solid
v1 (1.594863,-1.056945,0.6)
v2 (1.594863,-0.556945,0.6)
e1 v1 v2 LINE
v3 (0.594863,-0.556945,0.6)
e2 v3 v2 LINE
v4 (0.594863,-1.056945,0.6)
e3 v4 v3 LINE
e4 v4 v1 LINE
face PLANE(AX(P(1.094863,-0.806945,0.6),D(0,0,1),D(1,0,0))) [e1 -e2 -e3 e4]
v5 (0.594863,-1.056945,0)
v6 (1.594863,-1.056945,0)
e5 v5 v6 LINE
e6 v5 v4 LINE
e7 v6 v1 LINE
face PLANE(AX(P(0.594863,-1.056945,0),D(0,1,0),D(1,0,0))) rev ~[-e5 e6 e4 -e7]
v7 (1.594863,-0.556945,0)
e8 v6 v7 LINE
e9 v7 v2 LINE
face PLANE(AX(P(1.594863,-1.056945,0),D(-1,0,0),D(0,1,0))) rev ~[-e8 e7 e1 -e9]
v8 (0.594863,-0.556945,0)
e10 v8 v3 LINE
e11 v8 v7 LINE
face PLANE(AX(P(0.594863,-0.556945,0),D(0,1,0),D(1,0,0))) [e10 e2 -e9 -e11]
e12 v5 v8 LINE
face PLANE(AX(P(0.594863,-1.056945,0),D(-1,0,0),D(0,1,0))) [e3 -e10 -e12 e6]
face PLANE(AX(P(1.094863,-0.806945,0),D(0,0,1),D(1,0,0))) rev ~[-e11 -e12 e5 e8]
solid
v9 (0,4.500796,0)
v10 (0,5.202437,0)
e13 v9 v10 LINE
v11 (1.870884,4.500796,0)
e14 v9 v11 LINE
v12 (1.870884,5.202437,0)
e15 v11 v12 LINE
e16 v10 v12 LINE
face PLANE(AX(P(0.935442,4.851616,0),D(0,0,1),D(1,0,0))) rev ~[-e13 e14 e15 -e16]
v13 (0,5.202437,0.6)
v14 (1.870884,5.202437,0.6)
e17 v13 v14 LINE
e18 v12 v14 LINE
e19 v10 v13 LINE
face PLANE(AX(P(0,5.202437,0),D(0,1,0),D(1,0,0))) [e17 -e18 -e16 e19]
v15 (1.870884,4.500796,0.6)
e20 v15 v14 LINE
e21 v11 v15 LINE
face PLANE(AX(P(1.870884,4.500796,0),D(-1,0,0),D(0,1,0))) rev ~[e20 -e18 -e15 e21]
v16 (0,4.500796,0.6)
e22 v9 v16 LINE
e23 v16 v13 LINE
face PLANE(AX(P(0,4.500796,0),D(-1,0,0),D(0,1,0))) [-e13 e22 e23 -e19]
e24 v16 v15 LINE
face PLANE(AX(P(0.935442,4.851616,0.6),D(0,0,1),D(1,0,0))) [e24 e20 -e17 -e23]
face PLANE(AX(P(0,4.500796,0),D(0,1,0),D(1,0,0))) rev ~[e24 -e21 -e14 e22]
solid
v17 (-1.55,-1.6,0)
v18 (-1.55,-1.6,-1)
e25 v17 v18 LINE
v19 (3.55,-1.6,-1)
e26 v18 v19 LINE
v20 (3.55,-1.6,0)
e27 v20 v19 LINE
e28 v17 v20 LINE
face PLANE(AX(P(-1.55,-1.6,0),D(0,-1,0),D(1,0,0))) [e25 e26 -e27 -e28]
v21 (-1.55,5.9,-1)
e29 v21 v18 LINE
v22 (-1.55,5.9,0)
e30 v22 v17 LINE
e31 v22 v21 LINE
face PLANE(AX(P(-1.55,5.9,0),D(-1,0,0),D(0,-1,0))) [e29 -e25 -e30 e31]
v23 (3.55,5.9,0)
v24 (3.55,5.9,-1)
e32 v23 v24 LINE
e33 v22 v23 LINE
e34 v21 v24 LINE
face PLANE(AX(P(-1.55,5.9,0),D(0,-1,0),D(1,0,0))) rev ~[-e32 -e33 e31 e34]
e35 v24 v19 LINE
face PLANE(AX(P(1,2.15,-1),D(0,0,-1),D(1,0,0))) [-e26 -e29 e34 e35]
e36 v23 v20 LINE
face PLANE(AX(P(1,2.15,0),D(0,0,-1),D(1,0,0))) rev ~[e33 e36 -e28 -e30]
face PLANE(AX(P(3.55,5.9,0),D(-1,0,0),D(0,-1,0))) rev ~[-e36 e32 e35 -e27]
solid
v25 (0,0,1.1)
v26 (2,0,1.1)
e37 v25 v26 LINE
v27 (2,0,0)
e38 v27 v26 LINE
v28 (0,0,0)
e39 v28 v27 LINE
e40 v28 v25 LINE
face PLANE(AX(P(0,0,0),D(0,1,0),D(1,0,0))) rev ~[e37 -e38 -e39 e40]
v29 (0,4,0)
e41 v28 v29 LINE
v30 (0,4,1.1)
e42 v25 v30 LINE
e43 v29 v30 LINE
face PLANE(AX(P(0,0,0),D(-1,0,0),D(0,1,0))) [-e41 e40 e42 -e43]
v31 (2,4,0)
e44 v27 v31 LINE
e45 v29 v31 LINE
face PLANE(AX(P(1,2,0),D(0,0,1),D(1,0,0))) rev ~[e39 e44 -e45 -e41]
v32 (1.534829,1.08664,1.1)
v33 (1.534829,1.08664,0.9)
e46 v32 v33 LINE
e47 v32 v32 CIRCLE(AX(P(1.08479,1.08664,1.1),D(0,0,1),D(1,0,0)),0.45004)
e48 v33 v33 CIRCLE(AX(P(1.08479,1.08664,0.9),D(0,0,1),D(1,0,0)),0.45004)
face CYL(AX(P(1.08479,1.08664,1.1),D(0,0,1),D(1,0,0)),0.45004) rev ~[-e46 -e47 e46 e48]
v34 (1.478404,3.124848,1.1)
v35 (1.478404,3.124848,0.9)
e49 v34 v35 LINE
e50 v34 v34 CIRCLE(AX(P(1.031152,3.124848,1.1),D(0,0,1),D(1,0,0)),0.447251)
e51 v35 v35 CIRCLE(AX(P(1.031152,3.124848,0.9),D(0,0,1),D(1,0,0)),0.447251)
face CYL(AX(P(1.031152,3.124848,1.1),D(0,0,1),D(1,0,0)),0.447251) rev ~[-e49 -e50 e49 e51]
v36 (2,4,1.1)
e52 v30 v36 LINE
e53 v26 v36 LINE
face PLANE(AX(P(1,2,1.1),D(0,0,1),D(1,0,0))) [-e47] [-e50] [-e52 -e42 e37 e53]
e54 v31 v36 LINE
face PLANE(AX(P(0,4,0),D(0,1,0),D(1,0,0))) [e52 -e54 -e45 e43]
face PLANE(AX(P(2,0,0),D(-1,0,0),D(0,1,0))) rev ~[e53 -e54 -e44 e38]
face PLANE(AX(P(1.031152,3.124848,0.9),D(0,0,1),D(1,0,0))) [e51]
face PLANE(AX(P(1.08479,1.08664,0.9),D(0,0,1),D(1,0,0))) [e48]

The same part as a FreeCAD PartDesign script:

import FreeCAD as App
import Part
import Sketcher

V = App.Vector
Q = App.Units.Quantity

doc = App.newDocument("Part")
body = doc.addObject("PartDesign::Body", "Body")

sketch1 = body.newObject("Sketcher::SketchObject", "Sketch")
sketch1.AttachmentSupport = (doc.getObject("XY_Plane"), [""])
sketch1.MapMode = "FlatFace"
sketch1.addGeometry([
    Part.LineSegment(V(0, 4, 0), V(0, 0, 0)),
    Part.LineSegment(V(0, 0, 0), V(2, 0, 0)),
    Part.LineSegment(V(2, 0, 0), V(2, 4, 0)),
    Part.LineSegment(V(2, 4, 0), V(0, 4, 0)),
], False)
sketch1.addConstraint([
    Sketcher.Constraint("Coincident", 0, 2, 1, 1),
    Sketcher.Constraint("Coincident", 1, 2, 2, 1),
    Sketcher.Constraint("Coincident", 2, 2, 3, 1),
    Sketcher.Constraint("Coincident", 3, 2, 0, 1),
    Sketcher.Constraint("Vertical", 0),
    Sketcher.Constraint("Horizontal", 1),
    Sketcher.Constraint("Vertical", 2),
    Sketcher.Constraint("Horizontal", 3),
    Sketcher.Constraint("Coincident", 0, 2, -1, 1),
    Sketcher.Constraint("DistanceX", 1, 1, 1, 2, Q("2 mm")),
    Sketcher.Constraint("DistanceY", 0, 2, 0, 1, Q("4 mm")),
])
pad1 = body.newObject("PartDesign::Pad", "Pad")
pad1.Profile = sketch1
pad1.Length = 1.1

sketch2 = body.newObject("Sketcher::SketchObject", "Sketch001")
sketch2.AttachmentSupport = (doc.getObject("XY_Plane"), [""])
sketch2.MapMode = "FlatFace"
sketch2.AttachmentOffset = App.Placement(V(0, 0, 1.1), App.Rotation())
sketch2.addGeometry([
    Part.Circle(V(1.03, 3.12, 0), V(0, 0, 1), 0.45),
    Part.Circle(V(1.08, 1.09, 0), V(0, 0, 1), 0.45),
], False)
sketch2.addConstraint([
    Sketcher.Constraint("Diameter", 1, Q("0.900079 mm")),
    Sketcher.Constraint("Diameter", 0, Q("0.894503 mm")),
    Sketcher.Constraint("DistanceY", -1, 1, 0, 3, Q("3.124848 mm")),
    Sketcher.Constraint("DistanceX", -1, 1, 1, 3, Q("1.08479 mm")),
    Sketcher.Constraint("DistanceY", -1, 1, 1, 3, Q("1.08664 mm")),
    Sketcher.Constraint("DistanceX", -1, 1, 0, 3, Q("1.031152 mm")),
])
pocket1 = body.newObject("PartDesign::Pocket", "Pocket")
pocket1.Profile = sketch2
pocket1.Length = 0.2
body2 = doc.addObject("PartDesign::Body", "Body001")

sketch3 = body2.newObject("Sketcher::SketchObject", "Sketch002")
sketch3.AttachmentSupport = (doc.getObject("XY_Plane001"), [""])
sketch3.MapMode = "FlatFace"
sketch3.addGeometry([
    Part.LineSegment(V(-2, -2, 0), V(-2, 6, 0)),
    Part.LineSegment(V(-2, 6, 0), V(4, 6, 0)),
    Part.LineSegment(V(4, 6, 0), V(4, -2, 0)),
    Part.LineSegment(V(4, -2, 0), V(-2, -2, 0)),
], False)
sketch3.addConstraint([
    Sketcher.Constraint("Coincident", 0, 2, 1, 1),
    Sketcher.Constraint("Coincident", 1, 2, 2, 1),
    Sketcher.Constraint("Coincident", 2, 2, 3, 1),
    Sketcher.Constraint("Coincident", 3, 2, 0, 1),
    Sketcher.Constraint("Vertical", 0),
    Sketcher.Constraint("Horizontal", 1),
    Sketcher.Constraint("Vertical", 2),
    Sketcher.Constraint("Horizontal", 3),
    Sketcher.Constraint("DistanceX", 1, 1, 1, 2, Q("5.1 mm")),
    Sketcher.Constraint("DistanceY", 0, 1, 0, 2, Q("7.5 mm")),
    Sketcher.Constraint("DistanceY", -1, 1, 0, 2, Q("5.9 mm")),
    Sketcher.Constraint("DistanceX", 0, 2, -1, 1, Q("1.55 mm")),
])
pad2 = body2.newObject("PartDesign::Pad", "Pad001")
pad2.Profile = sketch3
pad2.Length = 1
pad2.Reversed = True
body3 = doc.addObject("PartDesign::Body", "Body002")

sketch4 = body3.newObject("Sketcher::SketchObject", "Sketch003")
sketch4.AttachmentSupport = (doc.getObject("XY_Plane002"), [""])
sketch4.MapMode = "FlatFace"
sketch4.addGeometry([
    Part.LineSegment(V(0.59, -0.56, 0), V(0.59, -1.06, 0)),
    Part.LineSegment(V(0.59, -1.06, 0), V(1.59, -1.06, 0)),
    Part.LineSegment(V(1.59, -1.06, 0), V(1.59, -0.56, 0)),
    Part.LineSegment(V(1.59, -0.56, 0), V(0.59, -0.56, 0)),
], False)
sketch4.addConstraint([
    Sketcher.Constraint("Coincident", 0, 2, 1, 1),
    Sketcher.Constraint("Coincident", 1, 2, 2, 1),
    Sketcher.Constraint("Coincident", 2, 2, 3, 1),
    Sketcher.Constraint("Coincident", 3, 2, 0, 1),
    Sketcher.Constraint("Vertical", 0),
    Sketcher.Constraint("Horizontal", 1),
    Sketcher.Constraint("Vertical", 2),
    Sketcher.Constraint("Horizontal", 3),
    Sketcher.Constraint("DistanceX", 1, 1, 1, 2, Q("1 mm")),
    Sketcher.Constraint("DistanceY", 0, 2, 0, 1, Q("0.5 mm")),
    Sketcher.Constraint("DistanceX", -1, 1, 0, 2, Q("0.594863 mm")),
    Sketcher.Constraint("DistanceY", 0, 2, -1, 1, Q("1.056945 mm")),
])
pad3 = body3.newObject("PartDesign::Pad", "Pad002")
pad3.Profile = sketch4
pad3.Length = 0.6
body4 = doc.addObject("PartDesign::Body", "Body003")

sketch5 = body4.newObject("Sketcher::SketchObject", "Sketch004")
sketch5.AttachmentSupport = (doc.getObject("XY_Plane003"), [""])
sketch5.MapMode = "FlatFace"
sketch5.addGeometry([
    Part.LineSegment(V(0, 5.2, 0), V(0, 4.5, 0)),
    Part.LineSegment(V(0, 4.5, 0), V(1.9, 4.5, 0)),
    Part.LineSegment(V(1.9, 4.5, 0), V(1.9, 5.2, 0)),
    Part.LineSegment(V(1.9, 5.2, 0), V(0, 5.2, 0)),
], False)
sketch5.addConstraint([
    Sketcher.Constraint("Coincident", 0, 2, 1, 1),
    Sketcher.Constraint("Coincident", 1, 2, 2, 1),
    Sketcher.Constraint("Coincident", 2, 2, 3, 1),
    Sketcher.Constraint("Coincident", 3, 2, 0, 1),
    Sketcher.Constraint("Vertical", 0),
    Sketcher.Constraint("Horizontal", 1),
    Sketcher.Constraint("Vertical", 2),
    Sketcher.Constraint("Horizontal", 3),
    Sketcher.Constraint("PointOnObject", 0, 2, -2),
    Sketcher.Constraint("DistanceY", 0, 2, 0, 1, Q("0.701642 mm")),
    Sketcher.Constraint("DistanceX", 1, 1, 1, 2, Q("1.870884 mm")),
    Sketcher.Constraint("DistanceY", -1, 1, 0, 2, Q("4.500796 mm")),
])
pad4 = body4.newObject("PartDesign::Pad", "Pad003")
pad4.Profile = sketch5
pad4.Length = 0.6

doc.recompute()
